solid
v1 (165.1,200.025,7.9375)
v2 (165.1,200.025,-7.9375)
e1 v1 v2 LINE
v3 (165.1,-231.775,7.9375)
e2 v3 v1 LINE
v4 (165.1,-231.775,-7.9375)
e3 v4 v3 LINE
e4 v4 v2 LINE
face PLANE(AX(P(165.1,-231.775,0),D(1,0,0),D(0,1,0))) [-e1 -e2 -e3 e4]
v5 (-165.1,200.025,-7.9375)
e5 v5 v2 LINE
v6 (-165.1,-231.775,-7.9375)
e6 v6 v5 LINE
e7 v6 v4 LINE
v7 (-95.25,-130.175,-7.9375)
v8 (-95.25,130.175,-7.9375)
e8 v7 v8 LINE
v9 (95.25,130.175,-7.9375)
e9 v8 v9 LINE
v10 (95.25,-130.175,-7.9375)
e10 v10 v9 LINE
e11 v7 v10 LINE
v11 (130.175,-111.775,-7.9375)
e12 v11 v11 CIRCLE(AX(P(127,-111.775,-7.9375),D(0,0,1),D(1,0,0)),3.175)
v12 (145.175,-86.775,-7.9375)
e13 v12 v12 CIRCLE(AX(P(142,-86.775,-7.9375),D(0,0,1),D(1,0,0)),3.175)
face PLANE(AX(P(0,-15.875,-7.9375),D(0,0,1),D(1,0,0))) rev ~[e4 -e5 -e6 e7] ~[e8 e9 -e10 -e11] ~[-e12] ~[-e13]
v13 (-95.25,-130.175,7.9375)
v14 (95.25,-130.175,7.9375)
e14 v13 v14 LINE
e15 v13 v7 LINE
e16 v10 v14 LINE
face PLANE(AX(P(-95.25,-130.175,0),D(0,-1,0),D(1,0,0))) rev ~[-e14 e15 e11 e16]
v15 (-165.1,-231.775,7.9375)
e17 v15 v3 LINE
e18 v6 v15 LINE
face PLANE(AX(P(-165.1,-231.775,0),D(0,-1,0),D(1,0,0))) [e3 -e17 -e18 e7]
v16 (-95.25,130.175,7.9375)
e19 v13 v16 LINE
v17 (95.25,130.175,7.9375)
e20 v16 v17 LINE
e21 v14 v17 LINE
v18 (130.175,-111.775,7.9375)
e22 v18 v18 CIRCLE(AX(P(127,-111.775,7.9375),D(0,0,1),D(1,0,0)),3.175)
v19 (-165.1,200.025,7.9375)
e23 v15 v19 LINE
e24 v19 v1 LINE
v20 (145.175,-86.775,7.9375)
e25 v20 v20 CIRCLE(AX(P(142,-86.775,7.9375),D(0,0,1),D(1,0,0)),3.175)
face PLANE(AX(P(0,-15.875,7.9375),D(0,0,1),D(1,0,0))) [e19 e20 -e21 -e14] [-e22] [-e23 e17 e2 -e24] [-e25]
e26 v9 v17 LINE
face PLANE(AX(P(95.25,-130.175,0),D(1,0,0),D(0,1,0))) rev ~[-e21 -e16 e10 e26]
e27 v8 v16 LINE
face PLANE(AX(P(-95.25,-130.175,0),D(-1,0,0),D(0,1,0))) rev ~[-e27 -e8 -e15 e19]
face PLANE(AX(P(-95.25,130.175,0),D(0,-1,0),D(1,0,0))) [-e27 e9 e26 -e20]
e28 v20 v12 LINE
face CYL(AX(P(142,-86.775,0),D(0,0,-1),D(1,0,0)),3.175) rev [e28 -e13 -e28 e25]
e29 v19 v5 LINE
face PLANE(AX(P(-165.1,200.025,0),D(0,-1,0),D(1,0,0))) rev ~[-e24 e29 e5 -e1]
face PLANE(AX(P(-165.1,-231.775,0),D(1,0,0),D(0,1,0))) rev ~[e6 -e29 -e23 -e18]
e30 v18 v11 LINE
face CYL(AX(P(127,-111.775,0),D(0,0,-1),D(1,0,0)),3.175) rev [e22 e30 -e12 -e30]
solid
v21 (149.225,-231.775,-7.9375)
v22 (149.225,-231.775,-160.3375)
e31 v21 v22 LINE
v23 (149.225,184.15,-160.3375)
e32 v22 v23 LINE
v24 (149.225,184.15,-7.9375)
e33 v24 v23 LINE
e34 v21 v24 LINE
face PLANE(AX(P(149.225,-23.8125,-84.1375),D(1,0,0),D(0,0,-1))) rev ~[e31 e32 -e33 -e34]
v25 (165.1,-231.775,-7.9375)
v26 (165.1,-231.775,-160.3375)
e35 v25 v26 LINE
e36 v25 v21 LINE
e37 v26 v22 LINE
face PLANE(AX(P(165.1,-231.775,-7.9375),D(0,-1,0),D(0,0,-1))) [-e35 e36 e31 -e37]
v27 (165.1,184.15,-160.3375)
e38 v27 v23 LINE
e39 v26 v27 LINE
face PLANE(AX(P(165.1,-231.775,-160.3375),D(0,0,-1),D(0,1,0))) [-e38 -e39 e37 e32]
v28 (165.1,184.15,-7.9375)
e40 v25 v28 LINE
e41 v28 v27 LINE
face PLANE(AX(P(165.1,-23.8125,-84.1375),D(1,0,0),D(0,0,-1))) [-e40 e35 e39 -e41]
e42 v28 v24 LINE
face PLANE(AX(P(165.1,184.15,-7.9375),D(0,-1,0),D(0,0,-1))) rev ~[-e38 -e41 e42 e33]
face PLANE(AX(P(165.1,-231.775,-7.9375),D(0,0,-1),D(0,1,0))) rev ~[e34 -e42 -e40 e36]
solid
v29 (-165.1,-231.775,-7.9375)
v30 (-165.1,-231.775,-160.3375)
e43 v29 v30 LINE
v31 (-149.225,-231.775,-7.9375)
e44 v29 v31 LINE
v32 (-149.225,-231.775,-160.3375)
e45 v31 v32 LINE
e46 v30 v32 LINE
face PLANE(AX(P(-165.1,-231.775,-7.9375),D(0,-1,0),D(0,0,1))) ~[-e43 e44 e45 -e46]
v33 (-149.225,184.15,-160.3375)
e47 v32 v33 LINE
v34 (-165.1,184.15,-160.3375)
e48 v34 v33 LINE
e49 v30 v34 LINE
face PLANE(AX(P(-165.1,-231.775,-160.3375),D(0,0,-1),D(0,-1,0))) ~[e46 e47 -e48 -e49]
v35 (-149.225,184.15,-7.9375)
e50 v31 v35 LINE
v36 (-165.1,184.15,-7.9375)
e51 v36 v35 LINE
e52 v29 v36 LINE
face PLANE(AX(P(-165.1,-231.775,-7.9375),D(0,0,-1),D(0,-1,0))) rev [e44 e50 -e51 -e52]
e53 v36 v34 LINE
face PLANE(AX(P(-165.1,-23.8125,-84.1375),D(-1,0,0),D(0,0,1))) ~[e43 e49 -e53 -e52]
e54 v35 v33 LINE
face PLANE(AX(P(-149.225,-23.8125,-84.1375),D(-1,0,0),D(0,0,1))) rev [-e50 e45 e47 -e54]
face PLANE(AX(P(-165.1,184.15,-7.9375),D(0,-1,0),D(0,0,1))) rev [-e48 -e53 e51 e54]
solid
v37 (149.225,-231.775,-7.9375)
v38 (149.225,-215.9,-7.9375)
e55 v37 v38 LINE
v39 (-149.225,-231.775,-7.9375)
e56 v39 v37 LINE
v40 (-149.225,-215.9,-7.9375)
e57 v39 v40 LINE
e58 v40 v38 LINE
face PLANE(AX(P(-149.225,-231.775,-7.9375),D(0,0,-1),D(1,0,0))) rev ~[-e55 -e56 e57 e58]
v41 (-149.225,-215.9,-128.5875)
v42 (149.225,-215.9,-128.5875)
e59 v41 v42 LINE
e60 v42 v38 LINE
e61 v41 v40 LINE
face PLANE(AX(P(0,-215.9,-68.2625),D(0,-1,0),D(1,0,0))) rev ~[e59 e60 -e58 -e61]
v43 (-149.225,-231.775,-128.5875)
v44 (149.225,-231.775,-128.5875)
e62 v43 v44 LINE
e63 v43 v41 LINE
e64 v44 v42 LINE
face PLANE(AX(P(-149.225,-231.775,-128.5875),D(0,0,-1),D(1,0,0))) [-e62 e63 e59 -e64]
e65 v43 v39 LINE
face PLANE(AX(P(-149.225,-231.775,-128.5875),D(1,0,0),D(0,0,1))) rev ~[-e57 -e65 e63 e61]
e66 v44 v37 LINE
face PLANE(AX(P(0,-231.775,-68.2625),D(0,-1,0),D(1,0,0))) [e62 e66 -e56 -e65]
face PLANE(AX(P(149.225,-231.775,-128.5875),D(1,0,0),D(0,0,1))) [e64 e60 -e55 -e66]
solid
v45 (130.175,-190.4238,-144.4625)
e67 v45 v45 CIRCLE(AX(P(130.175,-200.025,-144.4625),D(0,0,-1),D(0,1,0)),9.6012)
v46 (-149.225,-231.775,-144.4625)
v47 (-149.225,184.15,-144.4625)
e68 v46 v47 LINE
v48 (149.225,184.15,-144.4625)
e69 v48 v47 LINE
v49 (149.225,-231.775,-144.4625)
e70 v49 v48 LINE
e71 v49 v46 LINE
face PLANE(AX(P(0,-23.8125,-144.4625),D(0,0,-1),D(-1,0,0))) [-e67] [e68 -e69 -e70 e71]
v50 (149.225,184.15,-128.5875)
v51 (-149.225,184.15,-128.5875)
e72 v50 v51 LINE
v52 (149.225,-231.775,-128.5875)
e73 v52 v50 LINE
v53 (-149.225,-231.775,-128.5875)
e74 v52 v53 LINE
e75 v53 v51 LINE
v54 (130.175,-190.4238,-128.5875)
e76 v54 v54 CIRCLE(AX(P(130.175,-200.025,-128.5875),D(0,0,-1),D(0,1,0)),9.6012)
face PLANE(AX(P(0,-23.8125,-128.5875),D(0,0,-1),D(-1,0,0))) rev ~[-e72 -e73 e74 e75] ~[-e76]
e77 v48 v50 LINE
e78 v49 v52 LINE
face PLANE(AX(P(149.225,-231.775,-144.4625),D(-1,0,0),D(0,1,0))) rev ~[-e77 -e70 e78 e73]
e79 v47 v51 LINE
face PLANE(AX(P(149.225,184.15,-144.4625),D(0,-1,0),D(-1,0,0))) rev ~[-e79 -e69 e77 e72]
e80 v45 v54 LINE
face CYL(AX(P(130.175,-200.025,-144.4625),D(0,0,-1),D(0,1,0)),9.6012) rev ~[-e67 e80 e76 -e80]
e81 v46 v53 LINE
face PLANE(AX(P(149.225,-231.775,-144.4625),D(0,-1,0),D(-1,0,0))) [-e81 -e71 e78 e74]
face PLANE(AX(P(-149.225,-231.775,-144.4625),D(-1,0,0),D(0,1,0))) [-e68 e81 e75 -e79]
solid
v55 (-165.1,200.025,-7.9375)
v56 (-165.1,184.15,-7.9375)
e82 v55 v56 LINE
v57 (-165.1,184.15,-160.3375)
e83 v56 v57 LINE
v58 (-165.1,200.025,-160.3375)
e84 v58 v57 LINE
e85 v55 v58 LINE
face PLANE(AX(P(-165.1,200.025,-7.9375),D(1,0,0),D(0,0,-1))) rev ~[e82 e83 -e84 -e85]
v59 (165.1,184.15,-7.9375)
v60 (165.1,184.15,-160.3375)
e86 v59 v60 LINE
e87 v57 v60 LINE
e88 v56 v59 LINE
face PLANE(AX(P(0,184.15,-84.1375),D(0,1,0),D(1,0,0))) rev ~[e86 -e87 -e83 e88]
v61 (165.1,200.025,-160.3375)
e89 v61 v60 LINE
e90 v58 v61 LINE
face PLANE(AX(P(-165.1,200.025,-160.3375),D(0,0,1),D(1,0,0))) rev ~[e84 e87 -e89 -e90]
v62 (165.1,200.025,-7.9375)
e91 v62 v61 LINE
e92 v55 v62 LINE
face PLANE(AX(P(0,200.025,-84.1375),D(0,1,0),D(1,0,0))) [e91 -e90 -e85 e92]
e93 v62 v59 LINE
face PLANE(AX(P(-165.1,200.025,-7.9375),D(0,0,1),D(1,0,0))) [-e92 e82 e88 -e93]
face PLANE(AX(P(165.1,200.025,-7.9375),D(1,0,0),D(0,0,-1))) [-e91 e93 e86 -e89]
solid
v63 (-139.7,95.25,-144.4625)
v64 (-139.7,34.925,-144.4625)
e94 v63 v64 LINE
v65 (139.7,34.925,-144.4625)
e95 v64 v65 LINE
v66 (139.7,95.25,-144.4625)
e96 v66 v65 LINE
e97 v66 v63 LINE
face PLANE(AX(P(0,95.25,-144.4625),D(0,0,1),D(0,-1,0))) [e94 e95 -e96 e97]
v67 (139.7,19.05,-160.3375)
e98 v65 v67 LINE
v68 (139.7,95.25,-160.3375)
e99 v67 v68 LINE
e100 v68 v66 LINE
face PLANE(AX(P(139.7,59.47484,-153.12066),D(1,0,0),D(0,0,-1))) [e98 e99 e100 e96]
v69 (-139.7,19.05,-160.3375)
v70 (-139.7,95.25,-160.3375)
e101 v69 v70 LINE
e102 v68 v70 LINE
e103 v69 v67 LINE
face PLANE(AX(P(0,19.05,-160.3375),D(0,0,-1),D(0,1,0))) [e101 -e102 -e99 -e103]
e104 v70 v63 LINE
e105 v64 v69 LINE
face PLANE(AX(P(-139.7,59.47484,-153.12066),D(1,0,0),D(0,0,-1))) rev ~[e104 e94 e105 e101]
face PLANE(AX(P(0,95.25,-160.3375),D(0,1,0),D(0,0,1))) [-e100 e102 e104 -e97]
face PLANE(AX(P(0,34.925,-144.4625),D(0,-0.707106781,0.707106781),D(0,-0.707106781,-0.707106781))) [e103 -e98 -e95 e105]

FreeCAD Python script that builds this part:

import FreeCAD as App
import Part
import Sketcher
from FreeCAD import Vector
Q = App.Units.Quantity


def add_polygon(sketch, points):
    """Adds a closed chain of lines whose ends are joined by coincident constraints."""
    first, n = sketch.GeometryCount, len(points)
    for a, b in zip(points, points[1:] + points[:1]):
        sketch.addGeometry(Part.LineSegment(App.Vector(*a, 0), App.Vector(*b, 0)), False)
    for i in range(n):
        sketch.addConstraint(Sketcher.Constraint("Coincident", first + i, 2, first + (i + 1) % n, 1))

doc = App.newDocument("Part")
body = doc.addObject("PartDesign::Body", "Body")

# Sketch on XY plane
sketch1 = doc.addObject("Sketcher::SketchObject", "Sketch")
body.addObject(sketch1)
sketch1.AttachmentSupport = (doc.XY_Plane, [""])
sketch1.MapMode = "FlatFace"
add_polygon(sketch1, [(-165.1, 200), (-165.1, -231.8), (165.1, -231.8), (165.1, 200)])  # lines 0-3
sketch1.addGeometry(Part.Circle(Vector(127, -111.8, 0), Vector(0, 0, 1), 3.2), False)  # 4
sketch1.addGeometry(Part.Circle(Vector(142, -86.8, 0), Vector(0, 0, 1), 3.2), False)  # 5
add_polygon(sketch1, [(95.2, -130.2), (-95.2, -130.2), (-95.2, 130.2), (95.2, 130.2)])  # lines 6-9
sketch1.addConstraint(Sketcher.Constraint("Vertical", 0))
sketch1.addConstraint(Sketcher.Constraint("Horizontal", 1))
sketch1.addConstraint(Sketcher.Constraint("Vertical", 2))
sketch1.addConstraint(Sketcher.Constraint("Horizontal", 3))
sketch1.addConstraint(Sketcher.Constraint("Horizontal", 6))
sketch1.addConstraint(Sketcher.Constraint("Vertical", 7))
sketch1.addConstraint(Sketcher.Constraint("Horizontal", 8))
sketch1.addConstraint(Sketcher.Constraint("Vertical", 9))
sketch1.addConstraint(Sketcher.Constraint("Equal", 4, 5))
sketch1.addConstraint(Sketcher.Constraint("Symmetric", 6, 2, 8, 2, -1, 1))
sketch1.addConstraint(Sketcher.Constraint("Diameter", 4, Q("0.25 in")))
sketch1.addConstraint(Sketcher.Constraint("DistanceX", 1, 1, 1, 2, Q("13 in")))
sketch1.addConstraint(Sketcher.Constraint("DistanceY", 0, 2, 0, 1, Q("17 in")))
sketch1.addConstraint(Sketcher.Constraint("DistanceX", 6, 2, 6, 1, Q("7.5 in")))
sketch1.addConstraint(Sketcher.Constraint("DistanceX", -1, 1, 4, 3, Q("5 in")))
sketch1.addConstraint(Sketcher.Constraint("DistanceY", 0, 2, 6, 2, Q("4 in")))
sketch1.addConstraint(Sketcher.Constraint("DistanceY", 7, 1, 7, 2, Q("10.25 in")))
sketch1.addConstraint(Sketcher.Constraint("DistanceX", 0, 2, -1, 1, Q("6.5 in")))
sketch1.addConstraint(Sketcher.Constraint("DistanceY", 4, 3, -1, 1, 111.775))
sketch1.addConstraint(Sketcher.Constraint("DistanceX", -1, 1, 5, 3, 142.0))
sketch1.addConstraint(Sketcher.Constraint("DistanceY", 5, 3, -1, 1, 86.775))
pad1 = doc.addObject("PartDesign::Pad", "Pad")
body.addObject(pad1)
pad1.Profile = sketch1
pad1.Length = Q("0.625 in")
pad1.Midplane = True
body2 = doc.addObject("PartDesign::Body", "Body001")

# Sketch on YZ plane
sketch2 = doc.addObject("Sketcher::SketchObject", "Sketch001")
body2.addObject(sketch2)
sketch2.AttachmentSupport = (doc.getObject("YZ_Plane001"), [""])
sketch2.MapMode = "FlatFace"
sketch2.AttachmentOffset = App.Placement(Vector(0, 0, 6.5 * 25.4), App.Rotation())
add_polygon(sketch2, [(184, -8), (-232, -8), (-232, -160), (184, -160)])  # lines 0-3
sketch2.addConstraint(Sketcher.Constraint("Horizontal", 0))
sketch2.addConstraint(Sketcher.Constraint("Vertical", 1))
sketch2.addConstraint(Sketcher.Constraint("Horizontal", 2))
sketch2.addConstraint(Sketcher.Constraint("Vertical", 3))
sketch2.addConstraint(Sketcher.Constraint("DistanceY", 1, 2, 1, 1, Q("6 in")))
sketch2.addConstraint(Sketcher.Constraint("DistanceX", 0, 2, 0, 1, Q("16.375 in")))
sketch2.addConstraint(Sketcher.Constraint("DistanceX", -1, 1, 2, 2, Q("7.25 in")))
sketch2.addConstraint(Sketcher.Constraint("DistanceY", 0, 2, -1, 1, Q("0.3125 in")))
pad2 = doc.addObject("PartDesign::Pad", "Pad001")
body2.addObject(pad2)
pad2.Profile = sketch2
pad2.Length = Q("0.625 in")
pad2.Reversed = True
body3 = doc.addObject("PartDesign::Body", "Body002")
doc.recompute()

mirroring = doc.addObject("Part::Mirroring", "Mirroring")
mirroring.Source = body2
mirroring.Base = Vector(0, 0, 0)
mirroring.Normal = Vector(1, 0, 0)
body3.BaseFeature = mirroring
doc.recompute()
body4 = doc.addObject("PartDesign::Body", "Body003")

# Sketch on XY plane
sketch3 = doc.addObject("Sketcher::SketchObject", "Sketch002")
body4.addObject(sketch3)
sketch3.AttachmentSupport = (doc.getObject("XY_Plane003"), [""])
sketch3.MapMode = "FlatFace"
sketch3.AttachmentOffset = App.Placement(Vector(0, 0, -5.6875 * 25.4), App.Rotation())
add_polygon(sketch3, [(149, 184), (149, -232), (-149, -232), (-149, 184)])  # lines 0-3
sketch3.addGeometry(Part.Circle(Vector(130, -200, 0), Vector(0, 0, 1), 10), False)  # 4
sketch3.addConstraint(Sketcher.Constraint("Vertical", 0))
sketch3.addConstraint(Sketcher.Constraint("Horizontal", 1))
sketch3.addConstraint(Sketcher.Constraint("Vertical", 2))
sketch3.addConstraint(Sketcher.Constraint("Horizontal", 3))
sketch3.addConstraint(Sketcher.Constraint("Diameter", 4, Q("0.756 in")))
sketch3.addConstraint(Sketcher.Constraint("DistanceX", 1, 2, 4, 3, Q("11 in")))
sketch3.addConstraint(Sketcher.Constraint("DistanceX", 1, 2, 1, 1, Q("11.75 in")))
sketch3.addConstraint(Sketcher.Constraint("DistanceY", 0, 2, 0, 1, Q("16.375 in")))
sketch3.addConstraint(Sketcher.Constraint("DistanceY", -1, 1, 2, 2, Q("7.25 in")))
sketch3.addConstraint(Sketcher.Constraint("DistanceY", 0, 2, 4, 3, Q("1.25 in")))
sketch3.addConstraint(Sketcher.Constraint("DistanceX", -1, 1, 4, 3, Q("5.125 in")))
pad3 = doc.addObject("PartDesign::Pad", "Pad002")
body4.addObject(pad3)
pad3.Profile = sketch3
pad3.Length = Q("0.625 in")
body5 = doc.addObject("PartDesign::Body", "Body004")

# Sketch on XZ plane
sketch4 = doc.addObject("Sketcher::SketchObject", "Sketch003")
body5.addObject(sketch4)
sketch4.AttachmentSupport = (doc.getObject("XZ_Plane004"), [""])
sketch4.MapMode = "FlatFace"
sketch4.AttachmentOffset = App.Placement(Vector(0, 0, 9.125 * 25.4), App.Rotation())
add_polygon(sketch4, [(-149, -8), (-149, -129), (149, -129), (149, -8)])  # lines 0-3
sketch4.addConstraint(Sketcher.Constraint("Vertical", 0))
sketch4.addConstraint(Sketcher.Constraint("Horizontal", 1))
sketch4.addConstraint(Sketcher.Constraint("Vertical", 2))
sketch4.addConstraint(Sketcher.Constraint("Horizontal", 3))
sketch4.addConstraint(Sketcher.Constraint("DistanceX", 1, 1, 1, 2, Q("11.75 in")))
sketch4.addConstraint(Sketcher.Constraint("DistanceY", 0, 2, 0, 1, Q("4.75 in")))
sketch4.addConstraint(Sketcher.Constraint("DistanceX", 0, 2, -1, 1, Q("5.875 in")))
sketch4.addConstraint(Sketcher.Constraint("DistanceY", 0, 2, -1, 1, Q("5.0625 in")))
pad4 = doc.addObject("PartDesign::Pad", "Pad003")
body5.addObject(pad4)
pad4.Profile = sketch4
pad4.Length = Q("0.625 in")
pad4.Reversed = True
body6 = doc.addObject("PartDesign::Body", "Body005")

# Sketch on XZ plane
sketch5 = doc.addObject("Sketcher::SketchObject", "Sketch004")
body6.addObject(sketch5)
sketch5.AttachmentSupport = (doc.getObject("XZ_Plane005"), [""])
sketch5.MapMode = "FlatFace"
sketch5.AttachmentOffset = App.Placement(Vector(0, 0, -7.875 * 25.4), App.Rotation())
add_polygon(sketch5, [(-165, -160), (-165, -8), (165, -8), (165, -160)])  # lines 0-3
sketch5.addConstraint(Sketcher.Constraint("Vertical", 0))
sketch5.addConstraint(Sketcher.Constraint("Horizontal", 1))
sketch5.addConstraint(Sketcher.Constraint("Vertical", 2))
sketch5.addConstraint(Sketcher.Constraint("Horizontal", 3))
sketch5.addConstraint(Sketcher.Constraint("DistanceX", 1, 1, 1, 2, Q("13 in")))
sketch5.addConstraint(Sketcher.Constraint("DistanceY", 0, 1, 0, 2, Q("6 in")))
sketch5.addConstraint(Sketcher.Constraint("DistanceX", 0, 2, -1, 1, Q("6.5 in")))
sketch5.addConstraint(Sketcher.Constraint("DistanceY", 0, 2, -1, 1, Q("0.3125 in")))
pad5 = doc.addObject("PartDesign::Pad", "Pad004")
body6.addObject(pad5)
pad5.Profile = sketch5
pad5.Length = Q("0.625 in")
body7 = doc.addObject("PartDesign::Body", "Body006")

# Sketch on YZ plane
sketch6 = doc.addObject("Sketcher::SketchObject", "Sketch005")
body7.addObject(sketch6)
sketch6.AttachmentSupport = (doc.getObject("YZ_Plane006"), [""])
sketch6.MapMode = "FlatFace"
add_polygon(sketch6, [(95, -144), (35, -144), (19, -160), (95, -160)])  # lines 0-3
sketch6.addConstraint(Sketcher.Constraint("Horizontal", 0))
sketch6.addConstraint(Sketcher.Constraint("Horizontal", 2))
sketch6.addConstraint(Sketcher.Constraint("Vertical", 3))
sketch6.addConstraint(Sketcher.Constraint("DistanceX", 2, 1, 2, 2, Q("3 in")))
sketch6.addConstraint(Sketcher.Constraint("Angle", 1, Q("-135 deg")))
sketch6.addConstraint(Sketcher.Constraint("DistanceX", 0, 2, 0, 1, Q("2.375 in")))
sketch6.addConstraint(Sketcher.Constraint("DistanceX", -1, 1, 1, 2, Q("0.75 in")))
sketch6.addConstraint(Sketcher.Constraint("DistanceY", 0, 2, -1, 1, Q("5.6875 in")))
pad6 = doc.addObject("PartDesign::Pad", "Pad005")
body7.addObject(pad6)
pad6.Profile = sketch6
pad6.Length = Q("11 in")
pad6.Midplane = True
mirroring.Visibility = False

doc.recompute()
